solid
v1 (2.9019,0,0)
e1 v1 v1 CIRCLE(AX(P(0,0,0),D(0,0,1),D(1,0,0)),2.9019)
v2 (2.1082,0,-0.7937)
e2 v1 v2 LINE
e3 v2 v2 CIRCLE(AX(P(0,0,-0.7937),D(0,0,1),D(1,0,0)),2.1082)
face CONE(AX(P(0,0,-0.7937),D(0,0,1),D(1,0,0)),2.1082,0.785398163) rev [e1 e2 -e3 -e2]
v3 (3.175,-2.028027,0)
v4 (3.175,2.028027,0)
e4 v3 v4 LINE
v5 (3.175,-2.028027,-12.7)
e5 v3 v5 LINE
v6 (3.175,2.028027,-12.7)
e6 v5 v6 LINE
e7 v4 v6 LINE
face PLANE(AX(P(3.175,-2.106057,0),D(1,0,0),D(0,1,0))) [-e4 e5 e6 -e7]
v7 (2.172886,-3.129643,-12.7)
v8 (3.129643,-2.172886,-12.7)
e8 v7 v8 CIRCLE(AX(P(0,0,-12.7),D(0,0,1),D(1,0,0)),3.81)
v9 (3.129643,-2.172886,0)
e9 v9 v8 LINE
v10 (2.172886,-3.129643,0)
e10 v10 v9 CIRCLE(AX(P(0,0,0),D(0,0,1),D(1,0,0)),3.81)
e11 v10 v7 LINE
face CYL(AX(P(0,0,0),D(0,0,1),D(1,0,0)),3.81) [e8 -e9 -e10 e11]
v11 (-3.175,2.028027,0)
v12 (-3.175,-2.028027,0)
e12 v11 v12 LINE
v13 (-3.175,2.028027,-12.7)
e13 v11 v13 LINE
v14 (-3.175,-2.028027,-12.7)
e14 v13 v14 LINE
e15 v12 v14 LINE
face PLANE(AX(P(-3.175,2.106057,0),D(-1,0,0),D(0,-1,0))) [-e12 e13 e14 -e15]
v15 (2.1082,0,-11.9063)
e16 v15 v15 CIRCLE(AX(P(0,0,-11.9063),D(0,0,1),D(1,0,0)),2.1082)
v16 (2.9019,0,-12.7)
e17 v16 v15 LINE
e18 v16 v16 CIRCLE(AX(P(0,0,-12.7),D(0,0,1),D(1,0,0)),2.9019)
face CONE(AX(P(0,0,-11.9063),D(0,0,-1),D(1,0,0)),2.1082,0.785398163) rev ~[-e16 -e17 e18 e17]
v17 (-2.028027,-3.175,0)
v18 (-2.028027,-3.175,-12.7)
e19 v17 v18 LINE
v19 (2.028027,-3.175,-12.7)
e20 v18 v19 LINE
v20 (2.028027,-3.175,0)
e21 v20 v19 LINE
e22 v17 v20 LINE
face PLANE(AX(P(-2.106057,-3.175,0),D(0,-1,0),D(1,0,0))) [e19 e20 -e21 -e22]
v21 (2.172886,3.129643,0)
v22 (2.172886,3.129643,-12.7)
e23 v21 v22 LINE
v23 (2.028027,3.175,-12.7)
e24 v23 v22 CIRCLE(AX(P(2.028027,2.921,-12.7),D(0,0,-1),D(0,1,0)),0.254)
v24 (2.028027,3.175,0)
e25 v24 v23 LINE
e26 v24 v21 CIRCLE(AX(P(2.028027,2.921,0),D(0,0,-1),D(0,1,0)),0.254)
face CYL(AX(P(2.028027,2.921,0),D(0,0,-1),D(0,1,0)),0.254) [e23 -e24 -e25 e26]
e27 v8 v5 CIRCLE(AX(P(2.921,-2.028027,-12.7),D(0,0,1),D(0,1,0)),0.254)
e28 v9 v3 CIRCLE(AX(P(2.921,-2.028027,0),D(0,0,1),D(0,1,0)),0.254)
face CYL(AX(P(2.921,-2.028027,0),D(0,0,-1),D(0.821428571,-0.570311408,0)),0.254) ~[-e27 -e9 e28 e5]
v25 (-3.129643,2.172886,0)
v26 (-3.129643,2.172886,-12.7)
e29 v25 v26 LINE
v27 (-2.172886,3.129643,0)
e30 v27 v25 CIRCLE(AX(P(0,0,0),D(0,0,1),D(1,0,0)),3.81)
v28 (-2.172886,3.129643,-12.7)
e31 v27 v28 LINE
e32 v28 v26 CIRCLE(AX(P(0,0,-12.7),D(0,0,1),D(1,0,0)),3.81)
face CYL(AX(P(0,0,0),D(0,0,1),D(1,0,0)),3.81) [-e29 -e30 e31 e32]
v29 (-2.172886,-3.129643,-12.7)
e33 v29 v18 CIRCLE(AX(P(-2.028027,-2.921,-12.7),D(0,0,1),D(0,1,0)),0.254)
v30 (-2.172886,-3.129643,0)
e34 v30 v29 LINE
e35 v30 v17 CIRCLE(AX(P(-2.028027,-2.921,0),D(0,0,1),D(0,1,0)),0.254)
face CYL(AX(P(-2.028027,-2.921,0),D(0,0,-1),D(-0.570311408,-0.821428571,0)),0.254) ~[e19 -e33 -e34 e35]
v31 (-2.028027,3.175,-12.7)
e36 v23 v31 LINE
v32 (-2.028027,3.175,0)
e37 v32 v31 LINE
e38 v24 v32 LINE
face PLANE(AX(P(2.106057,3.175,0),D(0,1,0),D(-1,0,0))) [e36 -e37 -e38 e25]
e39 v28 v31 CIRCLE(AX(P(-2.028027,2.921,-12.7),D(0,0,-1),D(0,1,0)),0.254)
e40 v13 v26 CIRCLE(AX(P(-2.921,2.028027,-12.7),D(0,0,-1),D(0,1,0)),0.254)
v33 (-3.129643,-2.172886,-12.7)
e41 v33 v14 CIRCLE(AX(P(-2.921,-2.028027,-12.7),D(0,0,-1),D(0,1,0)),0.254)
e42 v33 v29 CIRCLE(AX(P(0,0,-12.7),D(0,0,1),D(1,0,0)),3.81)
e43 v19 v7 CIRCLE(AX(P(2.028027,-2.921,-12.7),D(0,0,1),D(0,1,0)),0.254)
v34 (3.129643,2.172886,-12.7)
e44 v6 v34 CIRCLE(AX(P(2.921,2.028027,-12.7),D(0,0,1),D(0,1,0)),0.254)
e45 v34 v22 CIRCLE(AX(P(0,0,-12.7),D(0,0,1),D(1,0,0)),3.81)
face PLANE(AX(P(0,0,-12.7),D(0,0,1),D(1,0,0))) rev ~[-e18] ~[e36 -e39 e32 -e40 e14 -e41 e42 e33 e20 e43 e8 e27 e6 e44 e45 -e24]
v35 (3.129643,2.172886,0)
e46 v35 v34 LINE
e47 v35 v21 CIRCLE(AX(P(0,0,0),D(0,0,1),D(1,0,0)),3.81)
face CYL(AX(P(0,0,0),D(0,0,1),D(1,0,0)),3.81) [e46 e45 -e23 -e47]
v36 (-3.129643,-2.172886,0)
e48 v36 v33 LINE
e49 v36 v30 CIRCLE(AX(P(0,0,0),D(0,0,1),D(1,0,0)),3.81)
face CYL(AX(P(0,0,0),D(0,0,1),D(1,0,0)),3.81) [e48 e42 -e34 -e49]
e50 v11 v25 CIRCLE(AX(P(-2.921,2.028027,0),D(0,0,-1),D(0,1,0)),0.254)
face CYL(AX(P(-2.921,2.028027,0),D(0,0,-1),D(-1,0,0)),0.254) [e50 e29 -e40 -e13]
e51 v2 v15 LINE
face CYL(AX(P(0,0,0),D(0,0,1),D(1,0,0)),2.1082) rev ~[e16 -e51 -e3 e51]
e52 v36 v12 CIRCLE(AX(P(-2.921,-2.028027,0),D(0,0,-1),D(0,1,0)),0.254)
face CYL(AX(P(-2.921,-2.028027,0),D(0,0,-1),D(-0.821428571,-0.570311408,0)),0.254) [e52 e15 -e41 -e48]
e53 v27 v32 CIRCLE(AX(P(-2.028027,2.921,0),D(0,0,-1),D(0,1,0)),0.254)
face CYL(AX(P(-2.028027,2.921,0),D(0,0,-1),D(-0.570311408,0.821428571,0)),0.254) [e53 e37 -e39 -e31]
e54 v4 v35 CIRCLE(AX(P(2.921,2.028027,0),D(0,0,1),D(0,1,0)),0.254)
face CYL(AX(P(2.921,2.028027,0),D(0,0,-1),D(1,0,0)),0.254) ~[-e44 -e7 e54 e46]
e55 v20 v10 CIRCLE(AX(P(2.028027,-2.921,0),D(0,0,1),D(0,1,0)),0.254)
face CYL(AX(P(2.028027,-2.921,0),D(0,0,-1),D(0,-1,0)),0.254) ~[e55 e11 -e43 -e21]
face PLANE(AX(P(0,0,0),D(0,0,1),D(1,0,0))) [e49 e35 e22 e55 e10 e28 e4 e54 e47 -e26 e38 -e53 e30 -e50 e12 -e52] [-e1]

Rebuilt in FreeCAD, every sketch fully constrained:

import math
import FreeCAD as App
import Part
import Sketcher
Q = App.Units.Quantity


def edges_at(feature, points):
    """Names of the edges that pass closest to the given points."""
    edges = feature.Shape.Edges
    near = lambda p: min(range(len(edges)), key=lambda i: edges[i].distToShape(Part.Vertex(*p))[0])
    return sorted({f"Edge{near(p) + 1}" for p in points})

doc = App.newDocument("Part")
params = doc.addObject("Spreadsheet::Sheet", "Params")
for row, (alias, value) in enumerate([
    ("sketch1_radius", "0.15 in"),
    ("pad1_length", "0.5 in"),
    ("sketch2_diameter", "0.166 in"),
    ("pocket1_length", "0.5 in"),
    ("fillet_radius", "0.01 in"),
    ("chamfer_size", "0.031248 in"),
], start=1):
    params.set(f"A{row}", alias)
    params.set(f"B{row}", "=" + value)
    params.setAlias(f"B{row}", alias)

body = doc.addObject("PartDesign::Body", "Body")

sketch1 = body.newObject("Sketcher::SketchObject", "Sketch")
sketch1.AttachmentSupport = (doc.getObject("XY_Plane"), [""])
sketch1.MapMode = "FlatFace"
sketch1.addGeometry(Part.ArcOfCircle(Part.Circle(App.Vector(0, 0, 0), App.Vector(0, 0, 1), 3.8), math.radians(-146), math.radians(-124)), False)
sketch1.addGeometry(Part.LineSegment(App.Vector(-2.1, -3.2, 0), App.Vector(2.1, -3.2, 0)), False)
sketch1.addGeometry(Part.ArcOfCircle(Part.Circle(App.Vector(0, 0, 0), App.Vector(0, 0, 1), 3.8), math.radians(-56), math.radians(-34)), False)
sketch1.addGeometry(Part.LineSegment(App.Vector(3.2, -2.1, 0), App.Vector(3.2, 2.1, 0)), False)
sketch1.addGeometry(Part.ArcOfCircle(Part.Circle(App.Vector(0, 0, 0), App.Vector(0, 0, 1), 3.8), math.radians(34), math.radians(56)), False)
sketch1.addGeometry(Part.LineSegment(App.Vector(2.1, 3.2, 0), App.Vector(-2.1, 3.2, 0)), False)
sketch1.addGeometry(Part.ArcOfCircle(Part.Circle(App.Vector(0, 0, 0), App.Vector(0, 0, 1), 3.8), math.radians(124), math.radians(146)), False)
sketch1.addGeometry(Part.LineSegment(App.Vector(-3.2, 2.1, 0), App.Vector(-3.2, -2.1, 0)), False)
sketch1.addConstraint(Sketcher.Constraint("Coincident", 0, 2, 1, 1))
sketch1.addConstraint(Sketcher.Constraint("Coincident", 1, 2, 2, 1))
sketch1.addConstraint(Sketcher.Constraint("Coincident", 2, 2, 3, 1))
sketch1.addConstraint(Sketcher.Constraint("Coincident", 3, 2, 4, 1))
sketch1.addConstraint(Sketcher.Constraint("Coincident", 4, 2, 5, 1))
sketch1.addConstraint(Sketcher.Constraint("Coincident", 5, 2, 6, 1))
sketch1.addConstraint(Sketcher.Constraint("Coincident", 6, 2, 7, 1))
sketch1.addConstraint(Sketcher.Constraint("Coincident", 7, 2, 0, 1))
sketch1.addConstraint(Sketcher.Constraint("Horizontal", 1))
sketch1.addConstraint(Sketcher.Constraint("Vertical", 3))
sketch1.addConstraint(Sketcher.Constraint("Horizontal", 5))
sketch1.addConstraint(Sketcher.Constraint("Vertical", 7))
sketch1.addConstraint(Sketcher.Constraint("Coincident", 0, 3, -1, 1))
sketch1.addConstraint(Sketcher.Constraint("Coincident", 2, 3, -1, 1))
sketch1.addConstraint(Sketcher.Constraint("Coincident", 4, 3, -1, 1))
sketch1.addConstraint(Sketcher.Constraint("Coincident", 6, 3, -1, 1))
sketch1.addConstraint(Sketcher.Constraint("Equal", 0, 2))
sketch1.addConstraint(Sketcher.Constraint("Equal", 2, 4))
sketch1.addConstraint(Sketcher.Constraint("Equal", 4, 6))
sketch1.addConstraint(Sketcher.Constraint("Horizontal", 3, 2, 6, 2))
sketch1.addConstraint(Sketcher.Constraint("Vertical", 1, 2, 4, 2))
sketch1.addConstraint(Sketcher.Constraint("Equal", 5, 3))
sketch1.addConstraint(Sketcher.Constraint("Radius", 0, Q("0.15 in")))
sketch1.addConstraint(Sketcher.Constraint("DistanceY", 0, 2, -1, 1, Q("0.125 in")))
sketch1.setExpression("Constraints[22]", "Params.sketch1_radius")
pad1 = body.newObject("PartDesign::Pad", "Pad")
pad1.Profile = sketch1
pad1.setExpression("Length", "Params.pad1_length")
pad1.Reversed = True

sketch2 = body.newObject("Sketcher::SketchObject", "Sketch001")
sketch2.AttachmentSupport = (doc.getObject("XY_Plane"), [""])
sketch2.MapMode = "FlatFace"
sketch2.addGeometry(Part.Circle(App.Vector(0, 0, 0), App.Vector(0, 0, 1), 2.1), False)
sketch2.addConstraint(Sketcher.Constraint("Coincident", 0, 3, -1, 1))
sketch2.addConstraint(Sketcher.Constraint("Diameter", 0, Q("0.166 in")))
sketch2.setExpression("Constraints[1]", "Params.sketch2_diameter")
pocket1 = body.newObject("PartDesign::Pocket", "Pocket")
pocket1.Profile = sketch2
pocket1.setExpression("Length", "Params.pocket1_length")
doc.recompute()

fillet = body.newObject("PartDesign::Fillet", "Fillet")
fillet.Base = (pocket1, edges_at(pocket1, [
    (2.106, 3.175, -6.35),
    (3.175, 2.106, -6.35),
    (3.175, -2.106, -6.35),
    (2.106, -3.175, -6.35),
    (-2.106, -3.175, -6.35),
    (-3.175, -2.106, -6.35),
    (-3.175, 2.106, -6.35),
    (-2.106, 3.175, -6.35),
]))
fillet.setExpression("Radius", "Params.fillet_radius")
doc.recompute()

chamfer = body.newObject("PartDesign::Chamfer", "Chamfer")
chamfer.Base = (fillet, edges_at(fillet, [(-2.108, 0, 0), (-2.108, 0, -12.7)]))
chamfer.setExpression("Size", "Params.chamfer_size")

doc.recompute()
